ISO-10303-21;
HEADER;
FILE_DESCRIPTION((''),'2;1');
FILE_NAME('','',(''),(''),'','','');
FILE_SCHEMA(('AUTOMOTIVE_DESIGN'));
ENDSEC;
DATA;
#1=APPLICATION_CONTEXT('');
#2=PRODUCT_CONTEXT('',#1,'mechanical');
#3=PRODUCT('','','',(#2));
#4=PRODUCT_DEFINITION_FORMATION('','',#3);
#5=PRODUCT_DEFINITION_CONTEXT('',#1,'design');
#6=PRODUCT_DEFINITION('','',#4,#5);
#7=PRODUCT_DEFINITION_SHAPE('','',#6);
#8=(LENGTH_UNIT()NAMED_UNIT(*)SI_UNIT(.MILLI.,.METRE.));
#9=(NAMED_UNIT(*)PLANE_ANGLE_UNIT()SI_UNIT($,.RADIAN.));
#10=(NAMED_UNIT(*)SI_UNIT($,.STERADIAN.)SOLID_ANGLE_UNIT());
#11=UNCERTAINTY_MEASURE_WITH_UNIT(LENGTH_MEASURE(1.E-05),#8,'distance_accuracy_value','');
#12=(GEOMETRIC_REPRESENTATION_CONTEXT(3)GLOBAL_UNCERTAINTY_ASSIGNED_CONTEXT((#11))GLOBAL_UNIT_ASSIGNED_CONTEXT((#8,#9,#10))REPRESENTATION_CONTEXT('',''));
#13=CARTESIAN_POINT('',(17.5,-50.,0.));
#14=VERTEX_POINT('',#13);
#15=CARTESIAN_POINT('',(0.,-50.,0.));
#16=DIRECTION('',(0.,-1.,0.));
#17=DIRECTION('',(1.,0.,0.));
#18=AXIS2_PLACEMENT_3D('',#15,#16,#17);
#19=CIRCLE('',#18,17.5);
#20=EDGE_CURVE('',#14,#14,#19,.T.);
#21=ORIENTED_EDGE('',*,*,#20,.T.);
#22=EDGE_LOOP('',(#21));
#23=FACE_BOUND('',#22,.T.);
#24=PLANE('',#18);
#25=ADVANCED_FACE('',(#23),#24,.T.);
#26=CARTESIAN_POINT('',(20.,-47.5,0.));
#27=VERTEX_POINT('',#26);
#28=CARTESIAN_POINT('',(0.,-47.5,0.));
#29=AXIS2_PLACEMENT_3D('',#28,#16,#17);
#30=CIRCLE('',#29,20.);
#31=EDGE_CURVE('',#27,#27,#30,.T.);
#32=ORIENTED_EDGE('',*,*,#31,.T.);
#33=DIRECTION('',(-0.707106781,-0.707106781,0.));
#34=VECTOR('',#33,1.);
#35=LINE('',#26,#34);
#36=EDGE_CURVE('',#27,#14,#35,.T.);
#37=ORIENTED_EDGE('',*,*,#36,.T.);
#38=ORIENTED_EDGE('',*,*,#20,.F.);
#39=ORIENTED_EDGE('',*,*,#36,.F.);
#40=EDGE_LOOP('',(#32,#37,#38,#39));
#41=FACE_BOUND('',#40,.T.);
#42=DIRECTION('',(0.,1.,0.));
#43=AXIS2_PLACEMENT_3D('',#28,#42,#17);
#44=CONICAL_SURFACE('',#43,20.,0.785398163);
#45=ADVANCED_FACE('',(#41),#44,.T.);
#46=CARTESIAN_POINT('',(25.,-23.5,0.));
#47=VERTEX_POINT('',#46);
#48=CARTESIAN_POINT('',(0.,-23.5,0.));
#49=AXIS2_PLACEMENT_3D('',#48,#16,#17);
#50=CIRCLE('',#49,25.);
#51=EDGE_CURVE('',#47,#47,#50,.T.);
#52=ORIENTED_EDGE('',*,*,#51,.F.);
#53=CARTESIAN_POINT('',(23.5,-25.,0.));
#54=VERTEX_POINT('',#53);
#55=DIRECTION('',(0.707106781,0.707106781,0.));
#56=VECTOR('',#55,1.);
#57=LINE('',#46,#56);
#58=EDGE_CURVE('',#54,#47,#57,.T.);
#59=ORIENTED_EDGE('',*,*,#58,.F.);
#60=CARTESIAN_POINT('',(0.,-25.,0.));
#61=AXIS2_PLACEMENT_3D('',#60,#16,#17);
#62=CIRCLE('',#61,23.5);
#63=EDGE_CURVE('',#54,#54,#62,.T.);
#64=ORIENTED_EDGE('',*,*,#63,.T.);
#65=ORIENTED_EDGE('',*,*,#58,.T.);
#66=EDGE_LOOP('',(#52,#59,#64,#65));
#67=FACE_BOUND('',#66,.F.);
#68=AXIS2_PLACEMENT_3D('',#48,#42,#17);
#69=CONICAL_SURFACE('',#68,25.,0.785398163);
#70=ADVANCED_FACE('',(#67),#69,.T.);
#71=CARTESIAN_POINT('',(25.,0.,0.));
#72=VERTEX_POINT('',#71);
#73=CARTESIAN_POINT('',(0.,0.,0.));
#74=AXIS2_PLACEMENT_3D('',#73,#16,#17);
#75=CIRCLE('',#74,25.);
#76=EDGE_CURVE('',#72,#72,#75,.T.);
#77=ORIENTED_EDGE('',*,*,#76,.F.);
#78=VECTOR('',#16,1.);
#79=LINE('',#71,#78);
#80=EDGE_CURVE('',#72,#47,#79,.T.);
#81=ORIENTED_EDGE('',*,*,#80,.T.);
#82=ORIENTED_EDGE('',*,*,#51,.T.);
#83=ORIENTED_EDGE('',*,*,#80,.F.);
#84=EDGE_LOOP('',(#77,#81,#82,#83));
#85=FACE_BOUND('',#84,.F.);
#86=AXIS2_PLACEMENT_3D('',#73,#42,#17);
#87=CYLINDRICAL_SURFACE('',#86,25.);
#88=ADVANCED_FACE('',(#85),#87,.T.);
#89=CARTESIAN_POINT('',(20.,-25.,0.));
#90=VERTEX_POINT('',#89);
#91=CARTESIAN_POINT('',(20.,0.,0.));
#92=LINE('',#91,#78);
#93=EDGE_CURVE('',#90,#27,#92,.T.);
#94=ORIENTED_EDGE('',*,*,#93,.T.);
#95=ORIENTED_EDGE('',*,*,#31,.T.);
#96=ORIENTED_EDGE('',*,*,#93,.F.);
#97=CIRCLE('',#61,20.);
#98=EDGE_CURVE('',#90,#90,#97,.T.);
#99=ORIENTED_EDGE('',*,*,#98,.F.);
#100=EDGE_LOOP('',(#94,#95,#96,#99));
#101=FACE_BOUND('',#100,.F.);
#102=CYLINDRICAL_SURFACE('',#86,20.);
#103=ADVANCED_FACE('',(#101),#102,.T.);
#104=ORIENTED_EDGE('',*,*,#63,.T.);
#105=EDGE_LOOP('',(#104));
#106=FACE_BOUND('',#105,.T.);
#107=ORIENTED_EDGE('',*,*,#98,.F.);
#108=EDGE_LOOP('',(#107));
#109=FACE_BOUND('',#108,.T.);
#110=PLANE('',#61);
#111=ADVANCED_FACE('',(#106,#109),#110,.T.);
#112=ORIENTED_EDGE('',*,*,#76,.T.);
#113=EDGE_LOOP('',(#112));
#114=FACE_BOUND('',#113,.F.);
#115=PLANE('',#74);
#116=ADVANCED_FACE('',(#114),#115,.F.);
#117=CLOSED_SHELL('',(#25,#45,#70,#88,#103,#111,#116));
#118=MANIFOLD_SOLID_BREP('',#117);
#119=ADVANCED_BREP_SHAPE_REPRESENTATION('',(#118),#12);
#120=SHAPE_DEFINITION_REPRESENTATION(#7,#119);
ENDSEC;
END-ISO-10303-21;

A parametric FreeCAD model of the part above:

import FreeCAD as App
import Part
import Sketcher

V = App.Vector
Q = App.Units.Quantity


def edges_at(feature, points):
    """Names of the edges that pass closest to the given points."""
    edges = feature.Shape.Edges
    near = lambda p: min(range(len(edges)), key=lambda i: edges[i].distToShape(Part.Vertex(*p))[0])
    return sorted({f"Edge{near(p) + 1}" for p in points})

doc = App.newDocument("Part")
body = doc.addObject("PartDesign::Body", "Body")

sketch1 = body.newObject("Sketcher::SketchObject", "Sketch")
sketch1.AttachmentSupport = (doc.getObject("XZ_Plane"), [""])
sketch1.MapMode = "FlatFace"
sketch1.addGeometry(Part.Circle(V(0, 0, 0), V(0, 0, 1), 20), False)
sketch1.addConstraint([
    Sketcher.Constraint("Coincident", 0, 3, -1, 1),
    Sketcher.Constraint("Diameter", 0, Q("40 mm")),
])
pad1 = body.newObject("PartDesign::Pad", "Pad")
pad1.Profile = sketch1
pad1.Length = 50

sketch2 = body.newObject("Sketcher::SketchObject", "Sketch001")
sketch2.AttachmentSupport = (doc.getObject("XZ_Plane"), [""])
sketch2.MapMode = "FlatFace"
sketch2.addGeometry([
    Part.Circle(V(0, 0, 0), V(0, 0, 1), 25),
    Part.Circle(V(0, 0, 0), V(0, 0, 1), 20),
], False)
sketch2.addConstraint([
    Sketcher.Constraint("Coincident", 0, 3, -1, 1),
    Sketcher.Constraint("Coincident", 1, 3, -1, 1),
    Sketcher.Constraint("Diameter", 0, Q("50 mm")),
    Sketcher.Constraint("Diameter", 1, Q("40 mm")),
])
pad2 = body.newObject("PartDesign::Pad", "Pad001")
pad2.Profile = sketch2
pad2.Length = 25
doc.recompute()

chamfer = body.newObject("PartDesign::Chamfer", "Chamfer")
chamfer.Base = (pad2, edges_at(pad2, [(-20, -50, 0)]))
chamfer.Size = 2.5
doc.recompute()

chamfer2 = body.newObject("PartDesign::Chamfer", "Chamfer001")
chamfer2.Base = (chamfer, edges_at(chamfer, [(-25, -25, 0)]))
chamfer2.Size = 1.5

doc.recompute()
